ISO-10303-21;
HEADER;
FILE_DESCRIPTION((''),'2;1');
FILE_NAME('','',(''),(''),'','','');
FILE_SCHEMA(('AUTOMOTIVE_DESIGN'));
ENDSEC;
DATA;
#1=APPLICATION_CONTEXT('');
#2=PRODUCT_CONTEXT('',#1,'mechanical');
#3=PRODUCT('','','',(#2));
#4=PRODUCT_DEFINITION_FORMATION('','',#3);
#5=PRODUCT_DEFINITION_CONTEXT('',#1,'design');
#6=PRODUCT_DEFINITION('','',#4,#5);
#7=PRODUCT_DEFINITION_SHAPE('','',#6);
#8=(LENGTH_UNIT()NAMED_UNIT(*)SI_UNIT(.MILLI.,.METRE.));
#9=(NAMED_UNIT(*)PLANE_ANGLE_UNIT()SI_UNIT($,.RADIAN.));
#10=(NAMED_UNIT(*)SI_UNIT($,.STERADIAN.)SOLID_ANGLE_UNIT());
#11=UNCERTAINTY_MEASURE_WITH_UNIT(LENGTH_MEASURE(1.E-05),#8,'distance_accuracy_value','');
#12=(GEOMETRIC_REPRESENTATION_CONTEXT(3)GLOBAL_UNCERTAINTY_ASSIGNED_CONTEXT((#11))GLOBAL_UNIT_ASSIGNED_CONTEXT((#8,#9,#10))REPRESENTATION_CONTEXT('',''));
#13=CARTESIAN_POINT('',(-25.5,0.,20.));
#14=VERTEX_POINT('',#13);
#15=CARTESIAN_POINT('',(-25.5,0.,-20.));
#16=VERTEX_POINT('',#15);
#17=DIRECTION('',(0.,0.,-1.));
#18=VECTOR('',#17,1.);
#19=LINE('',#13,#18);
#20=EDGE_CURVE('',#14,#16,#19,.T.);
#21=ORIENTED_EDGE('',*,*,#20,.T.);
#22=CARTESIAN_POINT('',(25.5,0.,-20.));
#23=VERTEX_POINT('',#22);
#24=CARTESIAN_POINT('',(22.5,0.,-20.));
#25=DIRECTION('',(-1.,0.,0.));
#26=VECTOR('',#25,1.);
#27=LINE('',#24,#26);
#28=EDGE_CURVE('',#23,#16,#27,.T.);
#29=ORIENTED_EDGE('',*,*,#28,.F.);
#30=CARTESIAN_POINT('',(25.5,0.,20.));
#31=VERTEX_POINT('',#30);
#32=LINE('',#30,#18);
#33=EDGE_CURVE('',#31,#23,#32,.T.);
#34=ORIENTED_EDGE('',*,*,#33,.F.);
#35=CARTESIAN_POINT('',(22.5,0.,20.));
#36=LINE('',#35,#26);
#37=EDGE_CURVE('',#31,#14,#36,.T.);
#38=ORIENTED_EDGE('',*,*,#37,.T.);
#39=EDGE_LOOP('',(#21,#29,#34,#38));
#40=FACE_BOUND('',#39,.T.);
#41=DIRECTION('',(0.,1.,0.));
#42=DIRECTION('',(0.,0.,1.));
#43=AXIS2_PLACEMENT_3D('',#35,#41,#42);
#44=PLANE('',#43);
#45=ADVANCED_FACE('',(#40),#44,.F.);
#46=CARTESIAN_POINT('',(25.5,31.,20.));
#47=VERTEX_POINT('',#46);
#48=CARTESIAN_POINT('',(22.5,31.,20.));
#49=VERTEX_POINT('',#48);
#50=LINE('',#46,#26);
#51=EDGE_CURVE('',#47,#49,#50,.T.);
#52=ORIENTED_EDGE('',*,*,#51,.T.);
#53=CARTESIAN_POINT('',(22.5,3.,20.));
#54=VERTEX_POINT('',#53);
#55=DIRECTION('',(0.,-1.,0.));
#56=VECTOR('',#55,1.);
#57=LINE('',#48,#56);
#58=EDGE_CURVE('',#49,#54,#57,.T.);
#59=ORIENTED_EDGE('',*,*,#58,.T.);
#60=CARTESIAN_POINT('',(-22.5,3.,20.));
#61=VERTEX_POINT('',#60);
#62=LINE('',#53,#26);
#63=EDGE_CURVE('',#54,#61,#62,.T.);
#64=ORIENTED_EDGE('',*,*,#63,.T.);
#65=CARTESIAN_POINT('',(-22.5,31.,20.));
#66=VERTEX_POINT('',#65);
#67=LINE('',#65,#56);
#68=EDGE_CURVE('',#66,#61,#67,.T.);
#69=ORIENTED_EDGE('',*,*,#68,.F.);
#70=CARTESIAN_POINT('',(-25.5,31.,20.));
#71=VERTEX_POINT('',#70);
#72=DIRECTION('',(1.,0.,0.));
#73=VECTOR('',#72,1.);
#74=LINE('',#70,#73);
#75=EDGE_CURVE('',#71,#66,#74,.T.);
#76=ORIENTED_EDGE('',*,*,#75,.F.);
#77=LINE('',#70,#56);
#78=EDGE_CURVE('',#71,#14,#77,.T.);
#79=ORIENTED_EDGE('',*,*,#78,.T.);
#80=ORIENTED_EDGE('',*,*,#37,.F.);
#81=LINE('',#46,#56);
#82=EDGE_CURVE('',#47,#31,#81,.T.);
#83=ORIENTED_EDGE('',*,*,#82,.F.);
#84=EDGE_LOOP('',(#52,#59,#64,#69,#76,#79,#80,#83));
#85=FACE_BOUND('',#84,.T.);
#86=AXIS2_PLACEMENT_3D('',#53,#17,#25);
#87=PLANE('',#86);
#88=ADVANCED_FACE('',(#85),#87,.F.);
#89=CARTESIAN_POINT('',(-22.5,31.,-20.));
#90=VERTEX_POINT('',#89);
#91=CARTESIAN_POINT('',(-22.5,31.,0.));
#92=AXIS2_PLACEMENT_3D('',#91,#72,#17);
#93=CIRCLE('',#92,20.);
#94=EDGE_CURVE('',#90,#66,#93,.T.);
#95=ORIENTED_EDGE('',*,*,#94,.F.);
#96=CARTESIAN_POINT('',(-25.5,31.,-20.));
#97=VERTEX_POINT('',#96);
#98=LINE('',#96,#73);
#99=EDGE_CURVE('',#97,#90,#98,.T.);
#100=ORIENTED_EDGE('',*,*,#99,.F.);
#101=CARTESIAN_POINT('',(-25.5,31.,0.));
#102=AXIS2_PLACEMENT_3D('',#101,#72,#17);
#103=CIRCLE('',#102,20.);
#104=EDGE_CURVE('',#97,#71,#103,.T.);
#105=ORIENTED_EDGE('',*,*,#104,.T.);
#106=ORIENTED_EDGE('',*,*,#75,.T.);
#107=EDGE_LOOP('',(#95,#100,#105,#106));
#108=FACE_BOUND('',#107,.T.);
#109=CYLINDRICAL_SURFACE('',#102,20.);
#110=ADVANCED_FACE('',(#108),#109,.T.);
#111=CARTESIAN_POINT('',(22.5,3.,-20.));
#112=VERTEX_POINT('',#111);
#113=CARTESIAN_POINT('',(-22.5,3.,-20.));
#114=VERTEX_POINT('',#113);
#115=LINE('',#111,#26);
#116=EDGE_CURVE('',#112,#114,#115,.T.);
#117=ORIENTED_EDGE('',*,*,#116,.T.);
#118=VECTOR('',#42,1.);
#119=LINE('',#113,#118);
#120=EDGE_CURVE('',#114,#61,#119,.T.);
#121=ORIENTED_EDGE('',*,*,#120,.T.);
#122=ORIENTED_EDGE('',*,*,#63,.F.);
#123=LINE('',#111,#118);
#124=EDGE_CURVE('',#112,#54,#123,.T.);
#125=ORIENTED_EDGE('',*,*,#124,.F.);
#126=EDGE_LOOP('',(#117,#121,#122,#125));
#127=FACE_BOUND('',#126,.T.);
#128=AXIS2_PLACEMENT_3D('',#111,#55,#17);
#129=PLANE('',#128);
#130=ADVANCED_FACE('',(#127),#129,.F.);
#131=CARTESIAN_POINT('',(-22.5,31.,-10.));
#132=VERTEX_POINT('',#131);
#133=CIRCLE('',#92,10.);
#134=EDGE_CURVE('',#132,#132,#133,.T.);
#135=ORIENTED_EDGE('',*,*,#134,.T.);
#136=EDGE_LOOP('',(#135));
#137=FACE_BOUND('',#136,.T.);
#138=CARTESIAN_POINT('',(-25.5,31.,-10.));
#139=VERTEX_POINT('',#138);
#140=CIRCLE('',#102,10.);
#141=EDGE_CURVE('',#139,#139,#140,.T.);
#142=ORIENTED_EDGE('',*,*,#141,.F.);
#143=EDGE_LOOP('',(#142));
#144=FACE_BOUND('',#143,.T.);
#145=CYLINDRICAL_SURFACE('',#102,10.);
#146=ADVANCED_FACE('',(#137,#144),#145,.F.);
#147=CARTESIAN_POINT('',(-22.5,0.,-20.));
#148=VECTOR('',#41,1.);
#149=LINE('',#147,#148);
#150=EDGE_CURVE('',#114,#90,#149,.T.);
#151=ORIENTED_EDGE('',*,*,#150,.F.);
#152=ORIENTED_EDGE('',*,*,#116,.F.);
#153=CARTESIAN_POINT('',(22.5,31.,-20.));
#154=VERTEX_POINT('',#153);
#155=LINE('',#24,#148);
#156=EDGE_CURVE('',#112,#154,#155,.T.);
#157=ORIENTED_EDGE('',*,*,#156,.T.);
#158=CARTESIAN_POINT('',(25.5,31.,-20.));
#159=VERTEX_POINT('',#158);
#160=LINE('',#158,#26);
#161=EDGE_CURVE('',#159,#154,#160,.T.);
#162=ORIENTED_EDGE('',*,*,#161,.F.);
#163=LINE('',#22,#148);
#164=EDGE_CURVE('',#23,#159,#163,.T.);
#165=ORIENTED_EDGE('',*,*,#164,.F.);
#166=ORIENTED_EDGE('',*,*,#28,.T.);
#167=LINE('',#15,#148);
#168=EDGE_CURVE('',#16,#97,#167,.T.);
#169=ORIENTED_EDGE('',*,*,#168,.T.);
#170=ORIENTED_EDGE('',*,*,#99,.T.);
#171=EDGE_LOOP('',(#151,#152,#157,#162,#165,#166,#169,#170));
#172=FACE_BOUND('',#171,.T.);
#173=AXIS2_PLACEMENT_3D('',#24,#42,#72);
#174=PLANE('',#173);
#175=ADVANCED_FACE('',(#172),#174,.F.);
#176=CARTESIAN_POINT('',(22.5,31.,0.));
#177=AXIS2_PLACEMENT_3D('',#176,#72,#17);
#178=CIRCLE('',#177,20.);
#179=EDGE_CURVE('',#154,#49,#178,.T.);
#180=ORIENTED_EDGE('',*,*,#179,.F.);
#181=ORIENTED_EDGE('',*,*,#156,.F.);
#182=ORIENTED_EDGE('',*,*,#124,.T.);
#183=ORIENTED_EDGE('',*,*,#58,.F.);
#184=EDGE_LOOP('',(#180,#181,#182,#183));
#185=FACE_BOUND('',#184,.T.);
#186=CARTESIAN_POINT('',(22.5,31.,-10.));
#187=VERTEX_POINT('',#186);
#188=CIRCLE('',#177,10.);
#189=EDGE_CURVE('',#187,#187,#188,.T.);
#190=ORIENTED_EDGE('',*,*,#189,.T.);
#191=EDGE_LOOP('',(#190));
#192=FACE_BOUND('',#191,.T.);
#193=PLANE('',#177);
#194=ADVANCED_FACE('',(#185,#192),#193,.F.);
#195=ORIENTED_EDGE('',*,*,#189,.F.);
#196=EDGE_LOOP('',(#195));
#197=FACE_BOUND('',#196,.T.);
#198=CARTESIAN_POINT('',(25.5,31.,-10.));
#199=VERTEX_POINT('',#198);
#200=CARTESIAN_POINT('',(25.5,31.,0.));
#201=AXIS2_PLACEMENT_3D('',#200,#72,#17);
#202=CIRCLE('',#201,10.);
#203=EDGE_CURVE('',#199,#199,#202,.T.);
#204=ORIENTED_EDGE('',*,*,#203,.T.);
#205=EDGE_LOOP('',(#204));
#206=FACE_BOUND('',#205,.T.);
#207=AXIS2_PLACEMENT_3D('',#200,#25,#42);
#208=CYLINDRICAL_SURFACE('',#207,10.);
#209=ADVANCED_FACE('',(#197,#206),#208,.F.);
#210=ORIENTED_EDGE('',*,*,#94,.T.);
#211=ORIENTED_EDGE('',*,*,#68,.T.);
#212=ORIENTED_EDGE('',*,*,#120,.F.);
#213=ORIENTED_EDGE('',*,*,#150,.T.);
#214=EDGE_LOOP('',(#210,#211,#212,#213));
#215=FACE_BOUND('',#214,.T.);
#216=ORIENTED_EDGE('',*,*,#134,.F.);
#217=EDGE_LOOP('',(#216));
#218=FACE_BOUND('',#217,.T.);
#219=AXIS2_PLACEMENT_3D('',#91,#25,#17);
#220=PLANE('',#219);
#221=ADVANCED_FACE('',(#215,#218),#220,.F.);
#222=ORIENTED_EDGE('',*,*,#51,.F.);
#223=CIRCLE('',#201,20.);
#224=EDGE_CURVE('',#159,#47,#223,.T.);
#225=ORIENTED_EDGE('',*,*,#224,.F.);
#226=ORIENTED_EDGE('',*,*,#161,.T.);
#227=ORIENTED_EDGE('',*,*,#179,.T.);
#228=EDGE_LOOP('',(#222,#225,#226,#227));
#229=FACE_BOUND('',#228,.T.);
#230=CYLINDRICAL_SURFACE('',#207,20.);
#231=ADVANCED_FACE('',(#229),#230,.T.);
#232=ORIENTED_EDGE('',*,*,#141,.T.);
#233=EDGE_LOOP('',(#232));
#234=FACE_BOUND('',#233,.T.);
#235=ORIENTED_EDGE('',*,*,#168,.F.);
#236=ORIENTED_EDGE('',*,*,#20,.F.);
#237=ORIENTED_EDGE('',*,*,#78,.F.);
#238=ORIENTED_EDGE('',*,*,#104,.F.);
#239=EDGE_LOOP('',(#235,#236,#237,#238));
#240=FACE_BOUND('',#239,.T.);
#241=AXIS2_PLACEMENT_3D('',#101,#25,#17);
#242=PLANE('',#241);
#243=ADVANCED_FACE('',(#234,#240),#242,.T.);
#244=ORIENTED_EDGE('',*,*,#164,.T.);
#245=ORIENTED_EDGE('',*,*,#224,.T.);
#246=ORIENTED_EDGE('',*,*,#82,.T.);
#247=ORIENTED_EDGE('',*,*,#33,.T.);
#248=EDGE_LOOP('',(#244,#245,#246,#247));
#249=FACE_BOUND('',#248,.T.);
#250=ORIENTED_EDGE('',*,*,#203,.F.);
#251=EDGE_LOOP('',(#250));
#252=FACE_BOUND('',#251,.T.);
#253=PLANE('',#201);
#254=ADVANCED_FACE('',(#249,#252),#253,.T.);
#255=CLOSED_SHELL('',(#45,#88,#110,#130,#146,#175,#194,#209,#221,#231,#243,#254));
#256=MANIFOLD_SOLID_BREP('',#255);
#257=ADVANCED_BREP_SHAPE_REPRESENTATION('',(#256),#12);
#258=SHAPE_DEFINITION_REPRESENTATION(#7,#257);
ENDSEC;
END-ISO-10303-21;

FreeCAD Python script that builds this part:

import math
import FreeCAD as App
import Part
import Sketcher


def add_polygon(sketch, points):
    """Adds a closed chain of lines whose ends are joined by coincident constraints."""
    first, n = sketch.GeometryCount, len(points)
    for a, b in zip(points, points[1:] + points[:1]):
        sketch.addGeometry(Part.LineSegment(App.Vector(*a, 0), App.Vector(*b, 0)), False)
    for i in range(n):
        sketch.addConstraint(Sketcher.Constraint("Coincident", first + i, 2, first + (i + 1) % n, 1))

doc = App.newDocument("Part")
body = doc.addObject("PartDesign::Body", "Body")

# Sketch on YZ plane
sketch1 = body.newObject("Sketcher::SketchObject", "Sketch")
sketch1.AttachmentSupport = (doc.getObject("YZ_Plane"), [""])
sketch1.MapMode = "FlatFace"
add_polygon(sketch1, [(3, 20), (0, 20), (0, -20), (3, -20)])  # lines 0-3
sketch1.addConstraint([
    Sketcher.Constraint("Horizontal", 0),
    Sketcher.Constraint("Vertical", 1),
    Sketcher.Constraint("Horizontal", 2),
    Sketcher.Constraint("Vertical", 3),
    Sketcher.Constraint("Symmetric", 0, 2, 1, 2, -1, 1),
    Sketcher.Constraint("DistanceX", 0, 2, 0, 1, 3.0),
    Sketcher.Constraint("DistanceY", 1, 2, 1, 1, 40.0),
])
pad1 = body.newObject("PartDesign::Pad", "Pad")
pad1.Profile = sketch1
pad1.Length = 45
pad1.Midplane = True

# Sketch on YZ plane
sketch2 = body.newObject("Sketcher::SketchObject", "Sketch001")
sketch2.AttachmentSupport = (doc.getObject("YZ_Plane"), [""])
sketch2.MapMode = "FlatFace"
sketch2.AttachmentOffset = App.Placement(App.Vector(0, 0, 22.5), App.Rotation())
sketch2.addGeometry([
    Part.LineSegment(App.Vector(31, 20, 0), App.Vector(0, 20, 0)),  # 0
    Part.LineSegment(App.Vector(0, 20, 0), App.Vector(0, -20, 0)),  # 1
    Part.LineSegment(App.Vector(0, -20, 0), App.Vector(31, -20, 0)),  # 2
    Part.ArcOfCircle(Part.Circle(App.Vector(31, 0, 0), App.Vector(0, 0, 1), 20), math.radians(-90), math.radians(90)),  # 3
    Part.Circle(App.Vector(31, 0, 0), App.Vector(0, 0, 1), 10),  # 4
], False)
sketch2.addConstraint([
    Sketcher.Constraint("Coincident", 0, 2, 1, 1),
    Sketcher.Constraint("Coincident", 1, 2, 2, 1),
    Sketcher.Constraint("Tangent", 2, 2, 3, 1),
    Sketcher.Constraint("Tangent", 3, 2, 0, 1),
    Sketcher.Constraint("Horizontal", 0),
    Sketcher.Constraint("Vertical", 1),
    Sketcher.Constraint("Horizontal", 2),
    Sketcher.Constraint("Coincident", 4, 3, 3, 3),
    Sketcher.Constraint("Symmetric", 0, 2, 1, 2, -1, 1),
    Sketcher.Constraint("Diameter", 4, 20.0),
    Sketcher.Constraint("Radius", 3, 20.0),
    Sketcher.Constraint("DistanceX", 0, 2, 0, 1, 31.0),
])
pad2 = body.newObject("PartDesign::Pad", "Pad001")
pad2.Profile = sketch2
pad2.Length = 3
doc.recompute()

mirrored = body.newObject("PartDesign::Mirrored", "Mirrored")
mirrored.Originals = [pad2]
mirrored.MirrorPlane = (doc.getObject("YZ_Plane"), [""])
body.Tip = mirrored

doc.recompute()
